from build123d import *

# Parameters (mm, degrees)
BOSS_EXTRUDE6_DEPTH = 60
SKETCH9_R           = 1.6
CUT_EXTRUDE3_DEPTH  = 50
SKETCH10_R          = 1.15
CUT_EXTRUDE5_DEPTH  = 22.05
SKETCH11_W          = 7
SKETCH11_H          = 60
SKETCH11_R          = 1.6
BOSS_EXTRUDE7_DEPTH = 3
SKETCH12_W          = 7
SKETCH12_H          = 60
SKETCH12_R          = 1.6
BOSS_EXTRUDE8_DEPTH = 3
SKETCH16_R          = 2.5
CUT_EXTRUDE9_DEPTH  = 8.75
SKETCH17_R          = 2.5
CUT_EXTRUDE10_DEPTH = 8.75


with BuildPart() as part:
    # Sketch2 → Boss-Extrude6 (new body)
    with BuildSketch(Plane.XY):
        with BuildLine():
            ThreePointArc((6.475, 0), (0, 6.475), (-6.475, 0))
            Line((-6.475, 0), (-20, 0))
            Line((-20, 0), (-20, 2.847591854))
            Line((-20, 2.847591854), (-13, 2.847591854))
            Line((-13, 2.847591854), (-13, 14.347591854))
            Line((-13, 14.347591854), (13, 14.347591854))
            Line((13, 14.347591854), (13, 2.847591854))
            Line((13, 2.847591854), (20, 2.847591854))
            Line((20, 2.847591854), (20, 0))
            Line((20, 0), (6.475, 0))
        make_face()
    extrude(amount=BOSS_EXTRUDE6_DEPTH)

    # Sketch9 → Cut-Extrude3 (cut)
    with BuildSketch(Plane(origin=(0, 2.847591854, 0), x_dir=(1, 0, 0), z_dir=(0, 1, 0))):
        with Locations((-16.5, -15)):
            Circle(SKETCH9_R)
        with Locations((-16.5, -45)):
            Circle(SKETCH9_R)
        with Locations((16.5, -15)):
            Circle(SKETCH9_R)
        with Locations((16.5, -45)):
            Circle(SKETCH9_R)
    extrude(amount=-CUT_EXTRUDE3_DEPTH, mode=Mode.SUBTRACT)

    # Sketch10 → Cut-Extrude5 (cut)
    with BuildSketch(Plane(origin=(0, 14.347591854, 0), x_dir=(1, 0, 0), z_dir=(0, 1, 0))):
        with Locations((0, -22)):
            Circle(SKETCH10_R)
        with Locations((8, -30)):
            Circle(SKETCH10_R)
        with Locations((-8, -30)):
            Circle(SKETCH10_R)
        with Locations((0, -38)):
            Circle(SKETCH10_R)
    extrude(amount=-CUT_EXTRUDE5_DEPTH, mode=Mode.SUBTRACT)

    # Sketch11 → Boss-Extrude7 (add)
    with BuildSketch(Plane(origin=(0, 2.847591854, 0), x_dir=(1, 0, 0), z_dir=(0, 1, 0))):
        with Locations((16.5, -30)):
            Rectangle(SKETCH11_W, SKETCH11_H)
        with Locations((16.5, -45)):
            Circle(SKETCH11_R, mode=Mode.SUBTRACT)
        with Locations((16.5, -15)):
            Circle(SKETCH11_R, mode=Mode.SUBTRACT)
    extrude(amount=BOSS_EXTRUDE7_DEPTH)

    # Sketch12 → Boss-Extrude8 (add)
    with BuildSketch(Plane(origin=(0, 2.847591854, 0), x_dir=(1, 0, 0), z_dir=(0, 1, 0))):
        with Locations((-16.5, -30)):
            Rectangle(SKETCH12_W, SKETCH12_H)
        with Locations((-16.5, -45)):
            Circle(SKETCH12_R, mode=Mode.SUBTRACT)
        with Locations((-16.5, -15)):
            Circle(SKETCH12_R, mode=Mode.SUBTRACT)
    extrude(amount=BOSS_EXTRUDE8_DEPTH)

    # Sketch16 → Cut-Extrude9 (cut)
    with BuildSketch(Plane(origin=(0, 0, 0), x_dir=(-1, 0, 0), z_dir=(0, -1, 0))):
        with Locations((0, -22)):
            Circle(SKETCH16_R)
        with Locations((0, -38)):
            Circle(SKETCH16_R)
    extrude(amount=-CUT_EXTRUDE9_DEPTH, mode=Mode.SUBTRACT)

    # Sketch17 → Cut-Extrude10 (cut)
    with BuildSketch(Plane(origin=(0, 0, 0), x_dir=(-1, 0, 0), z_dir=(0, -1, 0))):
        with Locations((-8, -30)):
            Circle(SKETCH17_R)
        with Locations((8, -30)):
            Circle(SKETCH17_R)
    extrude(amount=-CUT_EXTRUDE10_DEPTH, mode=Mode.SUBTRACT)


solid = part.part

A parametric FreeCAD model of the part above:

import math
import FreeCAD as App
import Part
import Sketcher

V = App.Vector


def add_polygon(sketch, points):
    """Adds a closed chain of lines whose ends are joined by coincident constraints."""
    first, n = sketch.GeometryCount, len(points)
    for a, b in zip(points, points[1:] + points[:1]):
        sketch.addGeometry(Part.LineSegment(App.Vector(*a, 0), App.Vector(*b, 0)), False)
    for i in range(n):
        sketch.addConstraint(Sketcher.Constraint("Coincident", first + i, 2, first + (i + 1) % n, 1))

doc = App.newDocument("Part")
body = doc.addObject("PartDesign::Body", "Body")

sketch1 = doc.addObject("Sketcher::SketchObject", "Sketch")
body.addObject(sketch1)
sketch1.AttachmentSupport = (doc.XY_Plane, [""])
sketch1.MapMode = "FlatFace"
sketch1.addGeometry([
    Part.ArcOfCircle(Part.Circle(V(0, 0, 0), V(0, 0, 1), 6.475), math.radians(0), math.radians(180)),
    Part.LineSegment(V(6.475, 0, 0), V(20, 0, 0)),
    Part.LineSegment(V(20, 0, 0), V(20, 2.847592, 0)),
    Part.LineSegment(V(20, 2.847592, 0), V(13, 2.847592, 0)),
    Part.LineSegment(V(13, 2.847592, 0), V(13, 14.347592, 0)),
    Part.LineSegment(V(13, 14.347592, 0), V(-13, 14.347592, 0)),
    Part.LineSegment(V(-13, 14.347592, 0), V(-13, 2.847592, 0)),
    Part.LineSegment(V(-13, 2.847592, 0), V(-20, 2.847592, 0)),
    Part.LineSegment(V(-20, 2.847592, 0), V(-20, 0, 0)),
    Part.LineSegment(V(-20, 0, 0), V(-6.475, 0, 0)),
], False)
sketch1.addConstraint([
    Sketcher.Constraint("Coincident", 0, 1, 1, 1),
    Sketcher.Constraint("Coincident", 1, 2, 2, 1),
    Sketcher.Constraint("Coincident", 2, 2, 3, 1),
    Sketcher.Constraint("Coincident", 3, 2, 4, 1),
    Sketcher.Constraint("Coincident", 4, 2, 5, 1),
    Sketcher.Constraint("Coincident", 5, 2, 6, 1),
    Sketcher.Constraint("Coincident", 6, 2, 7, 1),
    Sketcher.Constraint("Coincident", 7, 2, 8, 1),
    Sketcher.Constraint("Coincident", 8, 2, 9, 1),
    Sketcher.Constraint("Coincident", 9, 2, 0, 2),
    Sketcher.Constraint("Horizontal", 1),
    Sketcher.Constraint("Vertical", 2),
    Sketcher.Constraint("Horizontal", 3),
    Sketcher.Constraint("Vertical", 4),
    Sketcher.Constraint("Horizontal", 5),
    Sketcher.Constraint("Vertical", 6),
    Sketcher.Constraint("Horizontal", 7),
    Sketcher.Constraint("Vertical", 8),
    Sketcher.Constraint("Horizontal", 9),
    Sketcher.Constraint("Coincident", 0, 3, -1, 1),
    Sketcher.Constraint("Symmetric", 1, 2, 8, 2, -1, 1),
    Sketcher.Constraint("Symmetric", 3, 2, 6, 2, -2),
    Sketcher.Constraint("PointOnObject", 0, 1, -1),
    Sketcher.Constraint("DistanceX", 3, 2, 3, 1, 7.0),
    Sketcher.Constraint("DistanceX", 5, 2, 5, 1, 26.0),
    Sketcher.Constraint("DistanceY", 4, 1, 4, 2, 11.5),
    Sketcher.Constraint("Radius", 0, 6.475),
    Sketcher.Constraint("DistanceY", 2, 1, 2, 2, 2.847592),
])
pad1 = doc.addObject("PartDesign::Pad", "Pad")
body.addObject(pad1)
pad1.Profile = sketch1
pad1.Length = 60

sketch2 = doc.addObject("Sketcher::SketchObject", "Sketch001")
body.addObject(sketch2)
sketch2.AttachmentSupport = (doc.XZ_Plane, [""])
sketch2.MapMode = "FlatFace"
sketch2.AttachmentOffset = App.Placement(V(0, 0, -2.847592), App.Rotation())
sketch2.addGeometry([
    Part.Circle(V(-16.5, 15, 0), V(0, 0, 1), 1.6),
    Part.Circle(V(-16.5, 45, 0), V(0, 0, 1), 1.6),
    Part.Circle(V(16.5, 15, 0), V(0, 0, 1), 1.6),
    Part.Circle(V(16.5, 45, 0), V(0, 0, 1), 1.6),
], False)
sketch2.addConstraint([
    Sketcher.Constraint("Equal", 0, 1),
    Sketcher.Constraint("Equal", 1, 2),
    Sketcher.Constraint("Equal", 2, 3),
    Sketcher.Constraint("Symmetric", 0, 3, 2, 3, -2),
    Sketcher.Constraint("Symmetric", 1, 3, 3, 3, -2),
    Sketcher.Constraint("Vertical", 0, 3, 1, 3),
    Sketcher.Constraint("Diameter", 0, 3.2),
    Sketcher.Constraint("DistanceY", -1, 1, 0, 3, 15.0),
    Sketcher.Constraint("DistanceY", -1, 1, 1, 3, 45.0),
    Sketcher.Constraint("DistanceX", 0, 3, 2, 3, 33.0),
])
pocket1 = doc.addObject("PartDesign::Pocket", "Pocket")
body.addObject(pocket1)
pocket1.Profile = sketch2
pocket1.Length = 50
pocket1.Reversed = True

sketch3 = doc.addObject("Sketcher::SketchObject", "Sketch002")
body.addObject(sketch3)
sketch3.AttachmentSupport = (doc.XZ_Plane, [""])
sketch3.MapMode = "FlatFace"
sketch3.AttachmentOffset = App.Placement(V(0, 0, -14.347592), App.Rotation())
sketch3.addGeometry([
    Part.Circle(V(0, 22, 0), V(0, 0, 1), 1.15),
    Part.Circle(V(8, 30, 0), V(0, 0, 1), 1.15),
    Part.Circle(V(-8, 30, 0), V(0, 0, 1), 1.15),
    Part.Circle(V(0, 38, 0), V(0, 0, 1), 1.15),
], False)
sketch3.addConstraint([
    Sketcher.Constraint("Equal", 0, 1),
    Sketcher.Constraint("Equal", 1, 2),
    Sketcher.Constraint("Equal", 2, 3),
    Sketcher.Constraint("Symmetric", 1, 3, 2, 3, -2),
    Sketcher.Constraint("PointOnObject", 0, 3, -2),
    Sketcher.Constraint("PointOnObject", 3, 3, -2),
    Sketcher.Constraint("Diameter", 0, 2.3),
    Sketcher.Constraint("DistanceY", -1, 1, 0, 3, 22.0),
    Sketcher.Constraint("DistanceX", -1, 1, 1, 3, 8.0),
    Sketcher.Constraint("DistanceY", -1, 1, 1, 3, 30.0),
    Sketcher.Constraint("DistanceY", -1, 1, 3, 3, 38.0),
])
pocket2 = doc.addObject("PartDesign::Pocket", "Pocket001")
body.addObject(pocket2)
pocket2.Profile = sketch3
pocket2.Length = 22.05
pocket2.Reversed = True

sketch4 = doc.addObject("Sketcher::SketchObject", "Sketch003")
body.addObject(sketch4)
sketch4.AttachmentSupport = (doc.XZ_Plane, [""])
sketch4.MapMode = "FlatFace"
sketch4.AttachmentOffset = App.Placement(V(0, 0, -2.847592), App.Rotation())
add_polygon(sketch4, [(13, 0), (13, 60), (20, 60), (20, 0)])
sketch4.addGeometry(Part.Circle(V(16.5, 45, 0), V(0, 0, 1), 1.6), False)
sketch4.addGeometry(Part.Circle(V(16.5, 15, 0), V(0, 0, 1), 1.6), False)
sketch4.addConstraint([
    Sketcher.Constraint("Vertical", 0),
    Sketcher.Constraint("Horizontal", 1),
    Sketcher.Constraint("Vertical", 2),
    Sketcher.Constraint("Horizontal", 3),
    Sketcher.Constraint("Equal", 4, 5),
    Sketcher.Constraint("PointOnObject", 2, 2, -1),
    Sketcher.Constraint("Vertical", 4, 3, 5, 3),
    Sketcher.Constraint("Diameter", 4, 3.2),
    Sketcher.Constraint("DistanceX", 1, 1, 1, 2, 7.0),
    Sketcher.Constraint("DistanceY", 0, 1, 0, 2, 60.0),
    Sketcher.Constraint("DistanceY", -1, 1, 4, 3, 45.0),
    Sketcher.Constraint("DistanceY", -1, 1, 5, 3, 15.0),
    Sketcher.Constraint("DistanceX", -1, 1, 0, 2, 13.0),
    Sketcher.Constraint("DistanceX", -1, 1, 4, 3, 16.5),
])
pad2 = doc.addObject("PartDesign::Pad", "Pad001")
body.addObject(pad2)
pad2.Profile = sketch4
pad2.Length = 3
pad2.Reversed = True

sketch5 = doc.addObject("Sketcher::SketchObject", "Sketch004")
body.addObject(sketch5)
sketch5.AttachmentSupport = (doc.XZ_Plane, [""])
sketch5.MapMode = "FlatFace"
sketch5.AttachmentOffset = App.Placement(V(0, 0, -2.847592), App.Rotation())
add_polygon(sketch5, [(-20, 0), (-20, 60), (-13, 60), (-13, 0)])
sketch5.addGeometry(Part.Circle(V(-16.5, 45, 0), V(0, 0, 1), 1.6), False)
sketch5.addGeometry(Part.Circle(V(-16.5, 15, 0), V(0, 0, 1), 1.6), False)
sketch5.addConstraint([
    Sketcher.Constraint("Vertical", 0),
    Sketcher.Constraint("Horizontal", 1),
    Sketcher.Constraint("Vertical", 2),
    Sketcher.Constraint("Horizontal", 3),
    Sketcher.Constraint("Equal", 4, 5),
    Sketcher.Constraint("PointOnObject", 2, 2, -1),
    Sketcher.Constraint("Vertical", 4, 3, 5, 3),
    Sketcher.Constraint("Diameter", 4, 3.2),
    Sketcher.Constraint("DistanceX", 1, 1, 1, 2, 7.0),
    Sketcher.Constraint("DistanceY", 0, 1, 0, 2, 60.0),
    Sketcher.Constraint("DistanceY", -1, 1, 4, 3, 45.0),
    Sketcher.Constraint("DistanceY", -1, 1, 5, 3, 15.0),
    Sketcher.Constraint("DistanceX", 0, 2, -1, 1, 20.0),
    Sketcher.Constraint("DistanceX", 4, 3, -1, 1, 16.5),
])
pad3 = doc.addObject("PartDesign::Pad", "Pad002")
body.addObject(pad3)
pad3.Profile = sketch5
pad3.Length = 3
pad3.Reversed = True

sketch6 = doc.addObject("Sketcher::SketchObject", "Sketch005")
body.addObject(sketch6)
sketch6.AttachmentSupport = (doc.XZ_Plane, [""])
sketch6.MapMode = "FlatFace"
sketch6.addGeometry([
    Part.Circle(V(0, 22, 0), V(0, 0, 1), 2.5),
    Part.Circle(V(0, 38, 0), V(0, 0, 1), 2.5),
], False)
sketch6.addConstraint([
    Sketcher.Constraint("Equal", 0, 1),
    Sketcher.Constraint("PointOnObject", 0, 3, -2),
    Sketcher.Constraint("PointOnObject", 1, 3, -2),
    Sketcher.Constraint("Diameter", 0, 5.0),
    Sketcher.Constraint("DistanceY", -1, 1, 0, 3, 22.0),
    Sketcher.Constraint("DistanceY", -1, 1, 1, 3, 38.0),
])
pocket3 = doc.addObject("PartDesign::Pocket", "Pocket002")
body.addObject(pocket3)
pocket3.Profile = sketch6
pocket3.Length = 8.75

sketch7 = doc.addObject("Sketcher::SketchObject", "Sketch006")
body.addObject(sketch7)
sketch7.AttachmentSupport = (doc.XZ_Plane, [""])
sketch7.MapMode = "FlatFace"
sketch7.addGeometry([
    Part.Circle(V(8, 30, 0), V(0, 0, 1), 2.5),
    Part.Circle(V(-8, 30, 0), V(0, 0, 1), 2.5),
], False)
sketch7.addConstraint([
    Sketcher.Constraint("Equal", 0, 1),
    Sketcher.Constraint("Symmetric", 0, 3, 1, 3, -2),
    Sketcher.Constraint("Diameter", 0, 5.0),
    Sketcher.Constraint("DistanceX", -1, 1, 0, 3, 8.0),
    Sketcher.Constraint("DistanceY", -1, 1, 0, 3, 30.0),
])
pocket4 = doc.addObject("PartDesign::Pocket", "Pocket003")
body.addObject(pocket4)
pocket4.Profile = sketch7
pocket4.Length = 8.75

doc.recompute()
